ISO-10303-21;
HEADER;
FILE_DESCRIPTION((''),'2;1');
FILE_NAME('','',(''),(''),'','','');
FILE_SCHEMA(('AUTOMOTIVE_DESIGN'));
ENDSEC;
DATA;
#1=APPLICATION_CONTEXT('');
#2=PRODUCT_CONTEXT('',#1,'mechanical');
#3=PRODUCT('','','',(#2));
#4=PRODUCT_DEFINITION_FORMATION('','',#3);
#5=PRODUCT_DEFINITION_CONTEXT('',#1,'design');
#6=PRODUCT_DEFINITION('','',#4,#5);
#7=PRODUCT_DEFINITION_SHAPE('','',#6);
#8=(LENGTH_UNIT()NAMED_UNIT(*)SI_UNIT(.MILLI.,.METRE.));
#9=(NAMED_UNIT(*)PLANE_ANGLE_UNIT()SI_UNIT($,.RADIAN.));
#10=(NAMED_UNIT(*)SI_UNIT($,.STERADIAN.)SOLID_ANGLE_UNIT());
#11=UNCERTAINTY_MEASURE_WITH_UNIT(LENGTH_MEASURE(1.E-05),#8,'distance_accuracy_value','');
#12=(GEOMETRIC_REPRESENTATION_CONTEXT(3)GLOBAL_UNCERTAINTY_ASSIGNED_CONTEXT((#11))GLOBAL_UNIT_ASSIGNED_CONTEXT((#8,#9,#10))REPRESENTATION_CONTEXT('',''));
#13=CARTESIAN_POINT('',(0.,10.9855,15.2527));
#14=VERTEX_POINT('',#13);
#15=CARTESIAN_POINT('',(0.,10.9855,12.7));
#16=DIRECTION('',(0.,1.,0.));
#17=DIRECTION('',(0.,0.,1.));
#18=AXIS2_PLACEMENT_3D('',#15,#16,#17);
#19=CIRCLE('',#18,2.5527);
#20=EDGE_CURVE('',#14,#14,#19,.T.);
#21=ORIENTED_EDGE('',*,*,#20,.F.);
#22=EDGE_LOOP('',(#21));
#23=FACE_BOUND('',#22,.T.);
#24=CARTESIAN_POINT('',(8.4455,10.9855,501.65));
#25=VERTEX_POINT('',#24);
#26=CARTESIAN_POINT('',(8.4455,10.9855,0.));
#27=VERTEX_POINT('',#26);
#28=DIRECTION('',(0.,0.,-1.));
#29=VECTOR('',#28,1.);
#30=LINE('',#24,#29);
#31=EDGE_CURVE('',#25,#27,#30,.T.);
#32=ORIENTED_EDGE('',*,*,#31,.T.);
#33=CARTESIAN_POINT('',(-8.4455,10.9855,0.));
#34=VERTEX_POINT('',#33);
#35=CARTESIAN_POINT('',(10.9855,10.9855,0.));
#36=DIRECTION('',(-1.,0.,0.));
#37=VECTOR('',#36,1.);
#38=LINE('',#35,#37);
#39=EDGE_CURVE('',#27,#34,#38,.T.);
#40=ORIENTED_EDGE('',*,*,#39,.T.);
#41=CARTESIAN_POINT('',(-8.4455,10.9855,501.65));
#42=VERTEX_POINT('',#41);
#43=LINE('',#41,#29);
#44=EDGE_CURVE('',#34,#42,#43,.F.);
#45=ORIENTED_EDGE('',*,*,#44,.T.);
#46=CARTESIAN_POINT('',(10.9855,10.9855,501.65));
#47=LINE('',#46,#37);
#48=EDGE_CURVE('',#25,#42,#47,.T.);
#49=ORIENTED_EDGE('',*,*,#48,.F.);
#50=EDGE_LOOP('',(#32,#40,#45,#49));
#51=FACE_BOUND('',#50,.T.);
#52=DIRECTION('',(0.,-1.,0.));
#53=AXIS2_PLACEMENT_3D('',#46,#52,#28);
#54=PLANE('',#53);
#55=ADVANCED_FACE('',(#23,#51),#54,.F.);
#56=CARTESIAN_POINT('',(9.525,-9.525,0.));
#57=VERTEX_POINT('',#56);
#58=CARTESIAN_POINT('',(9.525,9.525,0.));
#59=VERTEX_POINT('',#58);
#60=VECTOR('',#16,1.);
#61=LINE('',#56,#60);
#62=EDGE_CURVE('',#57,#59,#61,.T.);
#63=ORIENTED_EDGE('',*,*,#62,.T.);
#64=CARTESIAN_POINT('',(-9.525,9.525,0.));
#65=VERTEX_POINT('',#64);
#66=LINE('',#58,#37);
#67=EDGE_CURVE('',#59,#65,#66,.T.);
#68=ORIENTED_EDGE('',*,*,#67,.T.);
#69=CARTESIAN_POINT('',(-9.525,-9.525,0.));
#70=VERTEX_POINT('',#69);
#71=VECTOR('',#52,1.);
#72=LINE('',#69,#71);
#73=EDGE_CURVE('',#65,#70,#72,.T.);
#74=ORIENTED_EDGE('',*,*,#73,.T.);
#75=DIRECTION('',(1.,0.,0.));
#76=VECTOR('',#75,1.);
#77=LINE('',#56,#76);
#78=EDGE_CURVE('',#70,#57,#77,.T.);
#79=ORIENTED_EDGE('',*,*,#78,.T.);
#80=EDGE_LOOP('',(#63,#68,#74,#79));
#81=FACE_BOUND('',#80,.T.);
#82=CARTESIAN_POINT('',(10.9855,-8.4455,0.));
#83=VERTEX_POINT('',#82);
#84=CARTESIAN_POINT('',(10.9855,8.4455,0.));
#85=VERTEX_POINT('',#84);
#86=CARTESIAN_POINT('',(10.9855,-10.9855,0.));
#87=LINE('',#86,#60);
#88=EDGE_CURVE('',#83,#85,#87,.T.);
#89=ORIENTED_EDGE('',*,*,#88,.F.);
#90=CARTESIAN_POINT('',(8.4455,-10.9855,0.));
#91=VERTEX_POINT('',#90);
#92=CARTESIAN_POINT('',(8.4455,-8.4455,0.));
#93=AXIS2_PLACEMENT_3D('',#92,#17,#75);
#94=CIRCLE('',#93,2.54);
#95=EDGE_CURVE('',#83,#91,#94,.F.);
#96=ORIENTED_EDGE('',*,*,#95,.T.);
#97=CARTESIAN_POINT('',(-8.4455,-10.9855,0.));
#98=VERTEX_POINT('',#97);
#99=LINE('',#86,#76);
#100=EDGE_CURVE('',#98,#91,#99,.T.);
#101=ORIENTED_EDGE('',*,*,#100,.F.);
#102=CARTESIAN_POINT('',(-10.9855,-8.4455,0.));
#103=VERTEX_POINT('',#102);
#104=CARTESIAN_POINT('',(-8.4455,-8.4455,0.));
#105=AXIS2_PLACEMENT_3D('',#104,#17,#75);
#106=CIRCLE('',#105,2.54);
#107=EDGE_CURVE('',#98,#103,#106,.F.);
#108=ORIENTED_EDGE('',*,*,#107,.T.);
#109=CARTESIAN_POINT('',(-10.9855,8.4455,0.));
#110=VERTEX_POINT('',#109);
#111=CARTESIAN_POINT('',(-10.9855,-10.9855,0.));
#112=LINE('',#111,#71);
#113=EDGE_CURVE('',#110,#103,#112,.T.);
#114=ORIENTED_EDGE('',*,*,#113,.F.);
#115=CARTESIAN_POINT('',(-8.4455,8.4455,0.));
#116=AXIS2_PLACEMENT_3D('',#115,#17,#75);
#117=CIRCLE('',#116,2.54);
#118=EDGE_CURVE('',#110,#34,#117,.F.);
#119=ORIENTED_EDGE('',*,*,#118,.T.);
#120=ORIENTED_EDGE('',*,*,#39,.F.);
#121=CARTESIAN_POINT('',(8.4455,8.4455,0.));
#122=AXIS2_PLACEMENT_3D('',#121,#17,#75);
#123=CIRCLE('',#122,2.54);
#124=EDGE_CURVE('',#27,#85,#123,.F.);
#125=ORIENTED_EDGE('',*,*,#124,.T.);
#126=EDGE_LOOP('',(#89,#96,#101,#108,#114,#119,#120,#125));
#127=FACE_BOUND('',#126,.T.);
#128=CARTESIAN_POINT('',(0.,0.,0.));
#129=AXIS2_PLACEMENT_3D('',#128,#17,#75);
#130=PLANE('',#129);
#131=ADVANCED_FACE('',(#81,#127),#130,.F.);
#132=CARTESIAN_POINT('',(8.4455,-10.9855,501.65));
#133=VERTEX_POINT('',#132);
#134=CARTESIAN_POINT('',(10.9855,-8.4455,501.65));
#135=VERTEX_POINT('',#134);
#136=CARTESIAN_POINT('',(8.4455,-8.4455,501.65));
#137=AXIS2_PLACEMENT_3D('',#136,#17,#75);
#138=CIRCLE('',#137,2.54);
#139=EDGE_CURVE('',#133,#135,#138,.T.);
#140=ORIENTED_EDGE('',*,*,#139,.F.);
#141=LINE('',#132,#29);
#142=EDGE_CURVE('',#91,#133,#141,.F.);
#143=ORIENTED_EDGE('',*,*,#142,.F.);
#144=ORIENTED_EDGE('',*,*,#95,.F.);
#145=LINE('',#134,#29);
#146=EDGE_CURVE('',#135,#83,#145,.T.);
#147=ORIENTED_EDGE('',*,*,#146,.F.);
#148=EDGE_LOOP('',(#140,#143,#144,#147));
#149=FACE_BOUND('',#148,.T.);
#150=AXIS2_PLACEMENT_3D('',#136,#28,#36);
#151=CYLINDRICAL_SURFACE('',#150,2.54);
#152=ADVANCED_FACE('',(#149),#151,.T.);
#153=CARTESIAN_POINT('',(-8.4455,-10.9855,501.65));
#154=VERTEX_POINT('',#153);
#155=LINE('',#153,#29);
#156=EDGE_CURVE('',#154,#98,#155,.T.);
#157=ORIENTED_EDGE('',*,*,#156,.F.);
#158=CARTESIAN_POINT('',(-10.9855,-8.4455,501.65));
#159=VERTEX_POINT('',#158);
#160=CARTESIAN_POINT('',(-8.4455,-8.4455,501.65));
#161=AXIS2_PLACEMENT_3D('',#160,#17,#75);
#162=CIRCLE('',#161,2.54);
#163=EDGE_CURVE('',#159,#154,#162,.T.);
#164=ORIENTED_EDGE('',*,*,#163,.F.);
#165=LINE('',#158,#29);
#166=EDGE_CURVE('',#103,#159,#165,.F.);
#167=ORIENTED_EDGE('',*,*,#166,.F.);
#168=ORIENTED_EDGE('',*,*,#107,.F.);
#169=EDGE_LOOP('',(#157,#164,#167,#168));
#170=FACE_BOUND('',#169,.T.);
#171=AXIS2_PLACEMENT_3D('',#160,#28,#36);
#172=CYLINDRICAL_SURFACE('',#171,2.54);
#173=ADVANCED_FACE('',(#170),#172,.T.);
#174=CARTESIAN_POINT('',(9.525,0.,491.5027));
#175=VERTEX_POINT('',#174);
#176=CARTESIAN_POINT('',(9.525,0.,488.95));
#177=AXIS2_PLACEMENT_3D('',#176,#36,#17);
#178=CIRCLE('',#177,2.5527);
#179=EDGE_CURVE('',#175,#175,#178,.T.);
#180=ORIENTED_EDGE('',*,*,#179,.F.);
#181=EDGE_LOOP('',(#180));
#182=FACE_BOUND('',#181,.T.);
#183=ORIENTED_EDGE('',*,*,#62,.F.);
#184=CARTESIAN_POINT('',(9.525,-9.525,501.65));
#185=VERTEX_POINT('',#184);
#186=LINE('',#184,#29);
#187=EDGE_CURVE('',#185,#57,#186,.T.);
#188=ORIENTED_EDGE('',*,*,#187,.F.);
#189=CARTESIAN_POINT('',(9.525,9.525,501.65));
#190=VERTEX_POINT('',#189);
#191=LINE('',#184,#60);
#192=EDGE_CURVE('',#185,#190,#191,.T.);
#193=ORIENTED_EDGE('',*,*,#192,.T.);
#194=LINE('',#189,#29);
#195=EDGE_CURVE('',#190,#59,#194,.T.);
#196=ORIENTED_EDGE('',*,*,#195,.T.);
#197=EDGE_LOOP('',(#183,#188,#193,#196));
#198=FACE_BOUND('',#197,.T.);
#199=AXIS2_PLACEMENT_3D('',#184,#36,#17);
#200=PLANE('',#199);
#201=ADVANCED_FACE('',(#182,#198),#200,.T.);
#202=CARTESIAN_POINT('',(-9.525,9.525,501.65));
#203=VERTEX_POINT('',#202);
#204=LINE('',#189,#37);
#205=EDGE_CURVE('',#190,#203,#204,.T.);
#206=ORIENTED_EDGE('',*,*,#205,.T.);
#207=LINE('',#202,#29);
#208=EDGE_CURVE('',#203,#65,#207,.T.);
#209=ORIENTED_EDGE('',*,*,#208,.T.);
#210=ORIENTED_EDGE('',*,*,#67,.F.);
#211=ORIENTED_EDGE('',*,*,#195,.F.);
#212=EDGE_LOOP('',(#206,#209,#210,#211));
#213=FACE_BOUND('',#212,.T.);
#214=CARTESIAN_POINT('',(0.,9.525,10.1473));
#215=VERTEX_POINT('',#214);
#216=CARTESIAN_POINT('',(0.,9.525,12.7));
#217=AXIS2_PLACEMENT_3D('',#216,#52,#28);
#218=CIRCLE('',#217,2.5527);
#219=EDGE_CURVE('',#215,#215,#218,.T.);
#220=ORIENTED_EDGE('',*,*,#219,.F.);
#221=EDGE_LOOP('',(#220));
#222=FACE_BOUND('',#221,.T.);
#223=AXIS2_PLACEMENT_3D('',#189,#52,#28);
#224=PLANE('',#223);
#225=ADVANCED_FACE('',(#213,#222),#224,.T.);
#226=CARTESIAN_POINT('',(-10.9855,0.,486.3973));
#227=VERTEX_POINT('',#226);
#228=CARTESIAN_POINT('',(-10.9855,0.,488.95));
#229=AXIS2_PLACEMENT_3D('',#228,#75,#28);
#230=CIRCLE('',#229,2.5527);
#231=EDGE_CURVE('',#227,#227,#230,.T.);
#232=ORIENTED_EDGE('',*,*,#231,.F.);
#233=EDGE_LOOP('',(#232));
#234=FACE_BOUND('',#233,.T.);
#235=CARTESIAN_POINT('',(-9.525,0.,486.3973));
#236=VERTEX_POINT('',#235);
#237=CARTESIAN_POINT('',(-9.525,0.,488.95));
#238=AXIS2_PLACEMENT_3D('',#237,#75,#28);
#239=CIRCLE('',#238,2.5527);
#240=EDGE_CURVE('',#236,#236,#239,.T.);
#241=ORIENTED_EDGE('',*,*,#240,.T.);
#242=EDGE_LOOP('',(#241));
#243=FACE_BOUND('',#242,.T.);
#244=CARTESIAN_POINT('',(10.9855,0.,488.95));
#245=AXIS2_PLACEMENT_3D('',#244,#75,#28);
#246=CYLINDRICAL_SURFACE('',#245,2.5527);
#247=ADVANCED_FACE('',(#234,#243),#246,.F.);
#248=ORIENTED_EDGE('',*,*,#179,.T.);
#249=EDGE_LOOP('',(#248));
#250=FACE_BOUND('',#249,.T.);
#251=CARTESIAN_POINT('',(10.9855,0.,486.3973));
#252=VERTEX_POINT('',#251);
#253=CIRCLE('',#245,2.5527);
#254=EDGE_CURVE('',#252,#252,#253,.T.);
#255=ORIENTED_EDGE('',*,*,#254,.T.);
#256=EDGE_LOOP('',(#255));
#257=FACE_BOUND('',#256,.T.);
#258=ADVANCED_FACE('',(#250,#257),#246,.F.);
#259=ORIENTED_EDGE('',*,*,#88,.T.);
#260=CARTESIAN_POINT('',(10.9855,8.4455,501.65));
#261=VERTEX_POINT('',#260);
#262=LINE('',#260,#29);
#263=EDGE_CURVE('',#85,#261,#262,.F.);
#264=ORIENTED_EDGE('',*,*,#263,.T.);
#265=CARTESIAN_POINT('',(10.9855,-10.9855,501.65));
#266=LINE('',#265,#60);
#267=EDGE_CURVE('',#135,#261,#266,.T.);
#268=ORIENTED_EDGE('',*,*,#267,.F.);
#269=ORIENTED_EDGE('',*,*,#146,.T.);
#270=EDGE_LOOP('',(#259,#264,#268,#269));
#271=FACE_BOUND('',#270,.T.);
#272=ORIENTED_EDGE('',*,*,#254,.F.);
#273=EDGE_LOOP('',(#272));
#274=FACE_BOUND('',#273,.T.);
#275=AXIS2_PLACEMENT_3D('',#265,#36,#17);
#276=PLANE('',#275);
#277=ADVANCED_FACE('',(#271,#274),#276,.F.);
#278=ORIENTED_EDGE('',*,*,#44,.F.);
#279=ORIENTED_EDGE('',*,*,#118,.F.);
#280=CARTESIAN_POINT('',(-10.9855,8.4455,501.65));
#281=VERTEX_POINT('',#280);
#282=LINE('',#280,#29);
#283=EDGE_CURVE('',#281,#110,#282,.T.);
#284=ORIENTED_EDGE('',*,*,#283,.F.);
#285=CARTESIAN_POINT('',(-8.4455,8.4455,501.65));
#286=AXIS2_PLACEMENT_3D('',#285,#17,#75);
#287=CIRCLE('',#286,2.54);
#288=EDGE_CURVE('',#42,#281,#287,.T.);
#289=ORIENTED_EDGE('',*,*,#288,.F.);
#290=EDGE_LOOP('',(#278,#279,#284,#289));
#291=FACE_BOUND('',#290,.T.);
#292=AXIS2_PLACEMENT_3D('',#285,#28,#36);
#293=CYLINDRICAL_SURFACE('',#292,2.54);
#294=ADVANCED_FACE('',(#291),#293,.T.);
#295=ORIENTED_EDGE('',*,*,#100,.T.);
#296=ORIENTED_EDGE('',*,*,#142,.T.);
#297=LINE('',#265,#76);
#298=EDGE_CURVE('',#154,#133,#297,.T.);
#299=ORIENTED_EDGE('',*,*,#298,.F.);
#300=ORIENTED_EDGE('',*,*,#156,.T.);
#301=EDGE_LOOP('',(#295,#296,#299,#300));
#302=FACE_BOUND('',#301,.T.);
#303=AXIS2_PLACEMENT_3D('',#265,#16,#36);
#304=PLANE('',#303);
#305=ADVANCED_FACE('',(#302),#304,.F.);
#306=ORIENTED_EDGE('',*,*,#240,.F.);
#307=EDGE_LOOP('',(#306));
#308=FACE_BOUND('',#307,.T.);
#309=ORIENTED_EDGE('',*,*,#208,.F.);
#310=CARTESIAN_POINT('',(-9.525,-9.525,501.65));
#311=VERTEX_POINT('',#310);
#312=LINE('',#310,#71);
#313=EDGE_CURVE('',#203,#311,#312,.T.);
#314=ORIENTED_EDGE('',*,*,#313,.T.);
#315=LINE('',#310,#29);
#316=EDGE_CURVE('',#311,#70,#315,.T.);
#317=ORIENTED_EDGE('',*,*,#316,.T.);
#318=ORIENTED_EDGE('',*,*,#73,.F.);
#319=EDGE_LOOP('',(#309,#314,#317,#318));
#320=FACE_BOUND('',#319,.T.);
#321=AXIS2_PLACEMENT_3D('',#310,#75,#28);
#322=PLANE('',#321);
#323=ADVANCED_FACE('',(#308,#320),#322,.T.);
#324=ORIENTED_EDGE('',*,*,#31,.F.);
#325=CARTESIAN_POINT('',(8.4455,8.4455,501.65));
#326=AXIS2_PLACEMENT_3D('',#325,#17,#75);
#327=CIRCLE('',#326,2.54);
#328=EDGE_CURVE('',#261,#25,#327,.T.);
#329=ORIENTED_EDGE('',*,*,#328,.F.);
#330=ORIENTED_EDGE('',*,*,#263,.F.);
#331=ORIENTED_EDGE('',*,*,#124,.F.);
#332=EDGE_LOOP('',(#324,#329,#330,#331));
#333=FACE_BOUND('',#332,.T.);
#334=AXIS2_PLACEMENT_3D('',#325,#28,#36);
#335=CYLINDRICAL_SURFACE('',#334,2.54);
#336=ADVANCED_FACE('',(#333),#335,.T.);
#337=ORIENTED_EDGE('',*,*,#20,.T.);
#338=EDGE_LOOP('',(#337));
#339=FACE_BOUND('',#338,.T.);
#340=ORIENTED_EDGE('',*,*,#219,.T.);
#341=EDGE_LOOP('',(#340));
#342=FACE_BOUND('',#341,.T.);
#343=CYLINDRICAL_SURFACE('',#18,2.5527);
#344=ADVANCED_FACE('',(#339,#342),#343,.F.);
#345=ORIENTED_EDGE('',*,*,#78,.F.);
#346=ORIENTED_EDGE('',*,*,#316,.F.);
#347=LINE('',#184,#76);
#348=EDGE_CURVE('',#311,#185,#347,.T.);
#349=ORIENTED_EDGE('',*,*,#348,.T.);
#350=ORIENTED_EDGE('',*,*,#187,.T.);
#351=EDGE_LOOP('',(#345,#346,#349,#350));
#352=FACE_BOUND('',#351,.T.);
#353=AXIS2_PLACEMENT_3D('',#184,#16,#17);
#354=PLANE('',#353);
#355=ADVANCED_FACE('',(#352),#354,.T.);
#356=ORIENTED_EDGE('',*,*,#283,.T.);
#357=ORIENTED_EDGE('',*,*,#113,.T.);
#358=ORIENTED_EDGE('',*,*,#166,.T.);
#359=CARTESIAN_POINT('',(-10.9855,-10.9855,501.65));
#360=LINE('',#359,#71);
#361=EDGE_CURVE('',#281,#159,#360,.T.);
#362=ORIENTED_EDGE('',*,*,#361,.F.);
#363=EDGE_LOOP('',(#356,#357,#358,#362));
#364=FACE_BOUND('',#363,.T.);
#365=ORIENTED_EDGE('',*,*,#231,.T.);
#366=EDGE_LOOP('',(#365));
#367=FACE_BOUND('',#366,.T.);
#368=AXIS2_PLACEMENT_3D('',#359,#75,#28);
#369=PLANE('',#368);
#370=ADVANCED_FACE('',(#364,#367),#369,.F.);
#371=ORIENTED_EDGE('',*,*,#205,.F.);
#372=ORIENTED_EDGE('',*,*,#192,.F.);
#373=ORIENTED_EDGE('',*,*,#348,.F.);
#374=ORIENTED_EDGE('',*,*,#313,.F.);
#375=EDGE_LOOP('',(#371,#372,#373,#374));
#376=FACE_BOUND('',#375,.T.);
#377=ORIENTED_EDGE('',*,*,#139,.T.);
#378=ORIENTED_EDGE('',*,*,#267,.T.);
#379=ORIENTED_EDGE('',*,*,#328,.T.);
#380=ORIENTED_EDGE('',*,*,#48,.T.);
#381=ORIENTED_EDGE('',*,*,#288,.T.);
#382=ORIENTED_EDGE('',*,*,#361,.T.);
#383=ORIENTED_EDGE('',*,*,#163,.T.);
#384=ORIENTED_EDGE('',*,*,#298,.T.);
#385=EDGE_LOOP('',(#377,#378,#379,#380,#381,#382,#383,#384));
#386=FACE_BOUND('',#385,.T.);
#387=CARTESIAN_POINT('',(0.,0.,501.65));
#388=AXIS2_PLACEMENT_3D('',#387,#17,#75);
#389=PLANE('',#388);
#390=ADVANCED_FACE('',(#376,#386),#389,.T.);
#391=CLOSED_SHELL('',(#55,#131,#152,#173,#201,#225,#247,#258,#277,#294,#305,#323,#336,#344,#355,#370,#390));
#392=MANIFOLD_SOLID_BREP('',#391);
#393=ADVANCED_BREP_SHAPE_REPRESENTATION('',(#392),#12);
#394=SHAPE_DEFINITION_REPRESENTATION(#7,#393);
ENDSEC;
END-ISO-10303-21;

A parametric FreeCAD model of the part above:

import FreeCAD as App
import Part
import Sketcher

V = App.Vector
Q = App.Units.Quantity


def edges_at(feature, points):
    """Names of the edges that pass closest to the given points."""
    edges = feature.Shape.Edges
    near = lambda p: min(range(len(edges)), key=lambda i: edges[i].distToShape(Part.Vertex(*p))[0])
    return sorted({f"Edge{near(p) + 1}" for p in points})

doc = App.newDocument("Part")
body = doc.addObject("PartDesign::Body", "Body")

sketch1 = body.newObject("Sketcher::SketchObject", "Sketch")
sketch1.AttachmentSupport = (doc.getObject("XY_Plane"), [""])
sketch1.MapMode = "FlatFace"
sketch1.addGeometry([
    Part.LineSegment(V(-10.9855, 10.9855, 0), V(-10.9855, -10.9855, 0)),
    Part.LineSegment(V(-10.9855, -10.9855, 0), V(10.9855, -10.9855, 0)),
    Part.LineSegment(V(10.9855, -10.9855, 0), V(10.9855, 10.9855, 0)),
    Part.LineSegment(V(10.9855, 10.9855, 0), V(-10.9855, 10.9855, 0)),
    Part.LineSegment(V(9.525, -9.525, 0), V(-9.525, -9.525, 0)),
    Part.LineSegment(V(-9.525, -9.525, 0), V(-9.525, 9.525, 0)),
    Part.LineSegment(V(-9.525, 9.525, 0), V(9.525, 9.525, 0)),
    Part.LineSegment(V(9.525, 9.525, 0), V(9.525, -9.525, 0)),
], False)
sketch1.addConstraint([
    Sketcher.Constraint("Coincident", 0, 2, 1, 1),
    Sketcher.Constraint("Coincident", 1, 2, 2, 1),
    Sketcher.Constraint("Coincident", 2, 2, 3, 1),
    Sketcher.Constraint("Coincident", 3, 2, 0, 1),
    Sketcher.Constraint("Coincident", 4, 2, 5, 1),
    Sketcher.Constraint("Coincident", 5, 2, 6, 1),
    Sketcher.Constraint("Coincident", 6, 2, 7, 1),
    Sketcher.Constraint("Coincident", 7, 2, 4, 1),
    Sketcher.Constraint("Vertical", 0),
    Sketcher.Constraint("Horizontal", 1),
    Sketcher.Constraint("Vertical", 2),
    Sketcher.Constraint("Horizontal", 3),
    Sketcher.Constraint("Horizontal", 4),
    Sketcher.Constraint("Vertical", 5),
    Sketcher.Constraint("Horizontal", 6),
    Sketcher.Constraint("Vertical", 7),
    Sketcher.Constraint("Symmetric", 0, 2, 2, 2, -1, 1),
    Sketcher.Constraint("Symmetric", 4, 2, 6, 2, -1, 1),
    Sketcher.Constraint("Equal", 3, 0),
    Sketcher.Constraint("Equal", 6, 5),
    Sketcher.Constraint("DistanceX", 4, 2, 4, 1, Q("0.75 in")),
    Sketcher.Constraint("DistanceX", 1, 1, 1, 2, Q("0.865 in")),
])
pad1 = body.newObject("PartDesign::Pad", "Pad")
pad1.Profile = sketch1
pad1.Length = Q("19.75 in")
doc.recompute()

fillet = body.newObject("PartDesign::Fillet", "Fillet")
fillet.Base = (pad1, edges_at(pad1, [
    (-10.986, 10.986, 250.825),
    (10.986, 10.986, 250.825),
    (10.986, -10.986, 250.825),
    (-10.986, -10.986, 250.825),
]))
fillet.Radius = Q("0.1 in")

sketch2 = body.newObject("Sketcher::SketchObject", "Sketch001")
sketch2.AttachmentSupport = (doc.getObject("XZ_Plane"), [""])
sketch2.MapMode = "FlatFace"
sketch2.AttachmentOffset = App.Placement(V(0, 0, -0.4325 * 25.4), App.Rotation())
sketch2.addGeometry(Part.Circle(V(0, 12.7, 0), V(0, 0, 1), 2.5527), False)
sketch2.addConstraint([
    Sketcher.Constraint("PointOnObject", 0, 3, -2),
    Sketcher.Constraint("Diameter", 0, Q("0.201 in")),
    Sketcher.Constraint("DistanceY", -1, 1, 0, 3, Q("0.5 in")),
])
doc.recompute()
hole = body.newObject("PartDesign::Hole", "Hole")
hole.Profile = sketch2
hole.ThreadType = "None"
hole.Diameter = Q("0.201 in")
hole.DepthType = "Dimension"
hole.Depth = Q("0.65 in")
hole.DrillPoint = "Angled"
hole.DrillPointAngle = 118
hole.Reversed = True

sketch3 = body.newObject("Sketcher::SketchObject", "Sketch002")
sketch3.AttachmentSupport = (doc.getObject("YZ_Plane"), [""])
sketch3.MapMode = "FlatFace"
sketch3.AttachmentOffset = App.Placement(V(0, 0, 0.4325 * 25.4), App.Rotation())
sketch3.addGeometry(Part.Circle(V(0, 488.95, 0), V(0, 0, 1), 2.5527), False)
sketch3.addConstraint([
    Sketcher.Constraint("PointOnObject", 0, 3, -2),
    Sketcher.Constraint("Diameter", 0, Q("0.201 in")),
    Sketcher.Constraint("DistanceY", -1, 1, 0, 3, Q("19.25 in")),
])
doc.recompute()
hole2 = body.newObject("PartDesign::Hole", "Hole001")
hole2.Profile = sketch3
hole2.ThreadType = "None"
hole2.Diameter = Q("0.201 in")
hole2.DepthType = "ThroughAll"

doc.recompute()
